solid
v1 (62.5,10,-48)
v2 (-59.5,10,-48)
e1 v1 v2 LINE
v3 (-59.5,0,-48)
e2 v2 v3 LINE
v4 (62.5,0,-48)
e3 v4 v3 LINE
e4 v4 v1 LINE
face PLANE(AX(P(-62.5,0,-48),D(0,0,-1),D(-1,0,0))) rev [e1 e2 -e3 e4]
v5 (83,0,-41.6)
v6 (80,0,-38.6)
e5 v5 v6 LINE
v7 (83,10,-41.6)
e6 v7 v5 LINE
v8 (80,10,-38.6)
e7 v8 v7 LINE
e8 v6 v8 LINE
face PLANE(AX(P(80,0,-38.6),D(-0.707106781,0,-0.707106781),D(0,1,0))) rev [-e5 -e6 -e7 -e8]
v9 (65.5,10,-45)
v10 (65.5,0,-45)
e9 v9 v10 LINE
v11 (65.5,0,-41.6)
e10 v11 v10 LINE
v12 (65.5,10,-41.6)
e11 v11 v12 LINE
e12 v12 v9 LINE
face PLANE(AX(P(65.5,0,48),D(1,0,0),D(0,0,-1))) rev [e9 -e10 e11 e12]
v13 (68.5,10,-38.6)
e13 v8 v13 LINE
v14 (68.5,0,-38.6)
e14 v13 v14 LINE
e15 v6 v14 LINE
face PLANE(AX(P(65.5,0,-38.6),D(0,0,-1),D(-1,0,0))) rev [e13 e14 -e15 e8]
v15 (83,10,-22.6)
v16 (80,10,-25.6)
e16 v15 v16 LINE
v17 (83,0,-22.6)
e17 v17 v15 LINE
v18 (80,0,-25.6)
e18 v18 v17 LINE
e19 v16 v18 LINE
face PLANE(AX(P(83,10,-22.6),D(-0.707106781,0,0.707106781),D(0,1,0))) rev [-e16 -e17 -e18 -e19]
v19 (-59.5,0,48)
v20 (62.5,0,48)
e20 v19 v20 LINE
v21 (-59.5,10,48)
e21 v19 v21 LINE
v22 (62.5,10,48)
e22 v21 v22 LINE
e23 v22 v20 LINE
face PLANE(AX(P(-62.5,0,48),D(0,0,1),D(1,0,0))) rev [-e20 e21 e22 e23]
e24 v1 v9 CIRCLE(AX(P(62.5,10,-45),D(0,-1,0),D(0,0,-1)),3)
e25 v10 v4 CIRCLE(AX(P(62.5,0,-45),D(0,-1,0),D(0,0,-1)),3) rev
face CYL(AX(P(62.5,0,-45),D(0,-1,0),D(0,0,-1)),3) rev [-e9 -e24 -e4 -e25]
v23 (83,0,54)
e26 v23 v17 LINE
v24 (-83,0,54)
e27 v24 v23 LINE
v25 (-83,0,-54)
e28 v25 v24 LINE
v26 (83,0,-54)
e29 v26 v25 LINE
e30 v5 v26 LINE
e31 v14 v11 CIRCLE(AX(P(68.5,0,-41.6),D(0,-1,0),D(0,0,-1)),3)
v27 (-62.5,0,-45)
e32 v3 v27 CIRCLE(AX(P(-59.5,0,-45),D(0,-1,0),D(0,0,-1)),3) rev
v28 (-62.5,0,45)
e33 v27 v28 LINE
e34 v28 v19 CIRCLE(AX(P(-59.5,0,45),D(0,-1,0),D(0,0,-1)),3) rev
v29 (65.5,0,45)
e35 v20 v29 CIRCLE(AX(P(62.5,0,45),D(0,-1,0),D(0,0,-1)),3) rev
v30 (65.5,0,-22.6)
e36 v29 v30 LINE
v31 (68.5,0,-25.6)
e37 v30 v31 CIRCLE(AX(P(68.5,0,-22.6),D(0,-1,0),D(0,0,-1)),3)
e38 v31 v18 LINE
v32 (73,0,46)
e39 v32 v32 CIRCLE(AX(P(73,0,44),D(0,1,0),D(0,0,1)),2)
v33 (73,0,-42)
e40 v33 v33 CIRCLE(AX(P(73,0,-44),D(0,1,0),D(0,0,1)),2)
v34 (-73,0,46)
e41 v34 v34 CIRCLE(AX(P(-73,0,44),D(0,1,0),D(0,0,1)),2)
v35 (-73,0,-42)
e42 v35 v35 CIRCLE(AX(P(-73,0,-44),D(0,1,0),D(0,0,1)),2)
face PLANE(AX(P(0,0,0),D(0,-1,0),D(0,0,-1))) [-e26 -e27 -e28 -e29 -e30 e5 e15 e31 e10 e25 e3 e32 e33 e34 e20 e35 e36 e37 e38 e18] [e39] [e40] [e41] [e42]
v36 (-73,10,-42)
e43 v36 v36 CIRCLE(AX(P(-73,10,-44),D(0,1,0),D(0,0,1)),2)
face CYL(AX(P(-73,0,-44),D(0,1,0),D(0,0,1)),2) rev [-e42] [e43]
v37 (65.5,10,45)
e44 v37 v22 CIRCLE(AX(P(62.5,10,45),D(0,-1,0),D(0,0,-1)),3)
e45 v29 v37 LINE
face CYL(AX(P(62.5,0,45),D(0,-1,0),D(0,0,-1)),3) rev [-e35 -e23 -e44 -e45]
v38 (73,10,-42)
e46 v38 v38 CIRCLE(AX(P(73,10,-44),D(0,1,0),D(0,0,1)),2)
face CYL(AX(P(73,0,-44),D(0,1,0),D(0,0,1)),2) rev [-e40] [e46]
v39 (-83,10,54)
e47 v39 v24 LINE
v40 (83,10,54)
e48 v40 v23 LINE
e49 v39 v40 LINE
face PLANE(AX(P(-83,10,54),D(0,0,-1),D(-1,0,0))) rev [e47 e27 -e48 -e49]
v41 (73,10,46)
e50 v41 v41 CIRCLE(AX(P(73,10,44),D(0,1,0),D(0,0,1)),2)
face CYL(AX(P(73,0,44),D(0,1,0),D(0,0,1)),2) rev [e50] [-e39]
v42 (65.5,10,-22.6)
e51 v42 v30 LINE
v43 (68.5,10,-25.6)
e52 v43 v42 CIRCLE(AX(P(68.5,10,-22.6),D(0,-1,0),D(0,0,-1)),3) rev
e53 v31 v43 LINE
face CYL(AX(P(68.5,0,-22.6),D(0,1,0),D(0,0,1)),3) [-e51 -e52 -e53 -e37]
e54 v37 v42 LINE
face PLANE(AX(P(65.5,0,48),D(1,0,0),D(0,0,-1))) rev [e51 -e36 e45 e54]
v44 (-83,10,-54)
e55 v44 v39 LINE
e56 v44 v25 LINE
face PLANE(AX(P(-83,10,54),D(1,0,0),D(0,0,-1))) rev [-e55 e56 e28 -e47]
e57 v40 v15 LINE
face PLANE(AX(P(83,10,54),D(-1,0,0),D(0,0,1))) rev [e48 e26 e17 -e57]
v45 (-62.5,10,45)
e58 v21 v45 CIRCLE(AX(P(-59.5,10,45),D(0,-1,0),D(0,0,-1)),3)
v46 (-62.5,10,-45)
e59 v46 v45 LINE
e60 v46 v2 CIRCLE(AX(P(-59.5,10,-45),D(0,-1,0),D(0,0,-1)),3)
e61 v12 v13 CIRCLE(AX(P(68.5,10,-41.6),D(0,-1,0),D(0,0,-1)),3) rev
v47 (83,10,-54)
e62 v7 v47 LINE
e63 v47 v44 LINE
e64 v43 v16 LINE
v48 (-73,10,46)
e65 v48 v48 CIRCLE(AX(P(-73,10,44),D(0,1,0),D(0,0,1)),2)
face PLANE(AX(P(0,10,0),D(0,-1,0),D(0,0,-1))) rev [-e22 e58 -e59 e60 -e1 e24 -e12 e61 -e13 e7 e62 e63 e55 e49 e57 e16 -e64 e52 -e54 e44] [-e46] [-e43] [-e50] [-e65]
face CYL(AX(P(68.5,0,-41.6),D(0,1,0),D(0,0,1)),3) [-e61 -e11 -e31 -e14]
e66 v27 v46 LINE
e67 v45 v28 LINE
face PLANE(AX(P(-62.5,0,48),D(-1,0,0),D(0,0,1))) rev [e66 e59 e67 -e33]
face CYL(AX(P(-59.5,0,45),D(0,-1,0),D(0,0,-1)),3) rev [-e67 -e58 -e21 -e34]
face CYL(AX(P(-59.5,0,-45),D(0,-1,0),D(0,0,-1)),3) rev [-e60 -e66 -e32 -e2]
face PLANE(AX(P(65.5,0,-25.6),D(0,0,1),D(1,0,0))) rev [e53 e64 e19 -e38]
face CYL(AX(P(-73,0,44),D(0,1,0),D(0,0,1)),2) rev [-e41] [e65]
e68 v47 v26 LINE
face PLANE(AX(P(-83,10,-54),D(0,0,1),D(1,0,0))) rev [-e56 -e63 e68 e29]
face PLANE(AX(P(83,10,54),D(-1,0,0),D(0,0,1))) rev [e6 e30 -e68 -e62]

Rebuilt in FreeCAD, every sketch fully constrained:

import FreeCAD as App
import Part
import Sketcher

V = App.Vector


def edges_at(feature, points):
    """Names of the edges that pass closest to the given points."""
    edges = feature.Shape.Edges
    near = lambda p: min(range(len(edges)), key=lambda i: edges[i].distToShape(Part.Vertex(*p))[0])
    return sorted({f"Edge{near(p) + 1}" for p in points})

doc = App.newDocument("Part")
body = doc.addObject("PartDesign::Body", "Body")

sketch1 = body.newObject("Sketcher::SketchObject", "Sketch")
sketch1.AttachmentSupport = (doc.getObject("XZ_Plane"), [""])
sketch1.MapMode = "FlatFace"
sketch1.addGeometry(Part.LineSegment(V(-83, -54, 0), V(-83, 54, 0)), False)
sketch1.addGeometry(Part.LineSegment(V(-83, 54, 0), V(83, 54, 0)), False)
sketch1.addGeometry(Part.LineSegment(V(83, 54, 0), V(83, -54, 0)), False)
sketch1.addGeometry(Part.LineSegment(V(83, -54, 0), V(-83, -54, 0)), False)
sketch1.addConstraint(Sketcher.Constraint("Coincident", 0, 2, 1, 1))
sketch1.addConstraint(Sketcher.Constraint("Coincident", 1, 2, 2, 1))
sketch1.addConstraint(Sketcher.Constraint("Coincident", 2, 2, 3, 1))
sketch1.addConstraint(Sketcher.Constraint("Coincident", 3, 2, 0, 1))
sketch1.addConstraint(Sketcher.Constraint("Vertical", 0))
sketch1.addConstraint(Sketcher.Constraint("Horizontal", 1))
sketch1.addConstraint(Sketcher.Constraint("Vertical", 2))
sketch1.addConstraint(Sketcher.Constraint("Horizontal", 3))
sketch1.addConstraint(Sketcher.Constraint("Symmetric", 0, 2, 2, 2, -1, 1))
sketch1.addConstraint(Sketcher.Constraint("DistanceX", 1, 1, 1, 2, 166.0))
sketch1.addConstraint(Sketcher.Constraint("DistanceY", 0, 1, 0, 2, 108.0))
pad1 = body.newObject("PartDesign::Pad", "Pad")
pad1.Profile = sketch1
pad1.Length = 10
pad1.Reversed = True

sketch2 = body.newObject("Sketcher::SketchObject", "Sketch001")
sketch2.AttachmentSupport = (doc.getObject("XZ_Plane"), [""])
sketch2.MapMode = "FlatFace"
sketch2.AttachmentOffset = App.Placement(V(0, 0, -10), App.Rotation())
sketch2.addGeometry(Part.Circle(V(-73, -44, 0), V(0, 0, 1), 2), False)
sketch2.addGeometry(Part.Circle(V(73, -44, 0), V(0, 0, 1), 2), False)
sketch2.addGeometry(Part.Circle(V(-73, 44, 0), V(0, 0, 1), 2), False)
sketch2.addGeometry(Part.Circle(V(73, 44, 0), V(0, 0, 1), 2), False)
sketch2.addConstraint(Sketcher.Constraint("Equal", 0, 1))
sketch2.addConstraint(Sketcher.Constraint("Equal", 1, 2))
sketch2.addConstraint(Sketcher.Constraint("Equal", 2, 3))
sketch2.addConstraint(Sketcher.Constraint("Symmetric", 1, 3, 2, 3, -1, 1))
sketch2.addConstraint(Sketcher.Constraint("Symmetric", 0, 3, 3, 3, -1, 1))
sketch2.addConstraint(Sketcher.Constraint("Symmetric", 0, 3, 1, 3, -2))
sketch2.addConstraint(Sketcher.Constraint("Diameter", 0, 4.0))
sketch2.addConstraint(Sketcher.Constraint("DistanceX", 0, 3, -1, 1, 73.0))
sketch2.addConstraint(Sketcher.Constraint("DistanceY", 0, 3, -1, 1, 44.0))
pocket1 = body.newObject("PartDesign::Pocket", "Pocket")
pocket1.Profile = sketch2
pocket1.Type = "ThroughAll"
pocket1.Reversed = True

sketch3 = body.newObject("Sketcher::SketchObject", "Sketch002")
sketch3.AttachmentSupport = (doc.getObject("XZ_Plane"), [""])
sketch3.MapMode = "FlatFace"
sketch3.AttachmentOffset = App.Placement(V(0, 0, -10), App.Rotation())
sketch3.addGeometry(Part.LineSegment(V(-62.5, -48, 0), V(-62.5, 48, 0)), False)
sketch3.addGeometry(Part.LineSegment(V(-62.5, 48, 0), V(65.5, 48, 0)), False)
sketch3.addGeometry(Part.LineSegment(V(65.5, 48, 0), V(65.5, -48, 0)), False)
sketch3.addGeometry(Part.LineSegment(V(65.5, -48, 0), V(-62.5, -48, 0)), False)
sketch3.addConstraint(Sketcher.Constraint("Coincident", 0, 2, 1, 1))
sketch3.addConstraint(Sketcher.Constraint("Coincident", 1, 2, 2, 1))
sketch3.addConstraint(Sketcher.Constraint("Coincident", 2, 2, 3, 1))
sketch3.addConstraint(Sketcher.Constraint("Coincident", 3, 2, 0, 1))
sketch3.addConstraint(Sketcher.Constraint("Vertical", 0))
sketch3.addConstraint(Sketcher.Constraint("Horizontal", 1))
sketch3.addConstraint(Sketcher.Constraint("Vertical", 2))
sketch3.addConstraint(Sketcher.Constraint("Horizontal", 3))
sketch3.addConstraint(Sketcher.Constraint("DistanceX", 1, 1, 1, 2, 128.0))
sketch3.addConstraint(Sketcher.Constraint("DistanceY", 0, 1, 0, 2, 96.0))
sketch3.addConstraint(Sketcher.Constraint("DistanceY", -1, 1, 0, 2, 48.0))
sketch3.addConstraint(Sketcher.Constraint("DistanceX", 0, 2, -1, 1, 62.5))
pocket2 = body.newObject("PartDesign::Pocket", "Pocket001")
pocket2.Profile = sketch3
pocket2.Type = "ThroughAll"
pocket2.Reversed = True

sketch4 = body.newObject("Sketcher::SketchObject", "Sketch003")
sketch4.AttachmentSupport = (doc.getObject("XZ_Plane"), [""])
sketch4.MapMode = "FlatFace"
sketch4.AttachmentOffset = App.Placement(V(0, 0, -10), App.Rotation())
sketch4.addGeometry(Part.LineSegment(V(65.5, -38.6, 0), V(65.5, -25.6, 0)), False)
sketch4.addGeometry(Part.LineSegment(V(65.5, -25.6, 0), V(83, -25.6, 0)), False)
sketch4.addGeometry(Part.LineSegment(V(83, -25.6, 0), V(83, -38.6, 0)), False)
sketch4.addGeometry(Part.LineSegment(V(83, -38.6, 0), V(65.5, -38.6, 0)), False)
sketch4.addConstraint(Sketcher.Constraint("Coincident", 0, 2, 1, 1))
sketch4.addConstraint(Sketcher.Constraint("Coincident", 1, 2, 2, 1))
sketch4.addConstraint(Sketcher.Constraint("Coincident", 2, 2, 3, 1))
sketch4.addConstraint(Sketcher.Constraint("Coincident", 3, 2, 0, 1))
sketch4.addConstraint(Sketcher.Constraint("Vertical", 0))
sketch4.addConstraint(Sketcher.Constraint("Horizontal", 1))
sketch4.addConstraint(Sketcher.Constraint("Vertical", 2))
sketch4.addConstraint(Sketcher.Constraint("Horizontal", 3))
sketch4.addConstraint(Sketcher.Constraint("DistanceY", 0, 1, 0, 2, 13.0))
sketch4.addConstraint(Sketcher.Constraint("DistanceX", 1, 1, 1, 2, 17.5))
sketch4.addConstraint(Sketcher.Constraint("DistanceX", -1, 1, 1, 2, 83.0))
sketch4.addConstraint(Sketcher.Constraint("DistanceY", 0, 2, -1, 1, 25.6))
pocket3 = body.newObject("PartDesign::Pocket", "Pocket002")
pocket3.Profile = sketch4
pocket3.Type = "ThroughAll"
pocket3.Reversed = True
doc.recompute()

fillet = body.newObject("PartDesign::Fillet", "Fillet")
fillet.Base = (pocket3, edges_at(pocket3, [
    (65.5, 5, -48),
    (65.5, 5, 48),
    (-62.5, 5, 48),
    (-62.5, 5, -48),
]))
fillet.Radius = 3
doc.recompute()

chamfer = body.newObject("PartDesign::Chamfer", "Chamfer")
chamfer.Base = (fillet, edges_at(fillet, [(83, 5, -38.6), (83, 5, -25.6)]))
chamfer.Size = 3
doc.recompute()

fillet2 = body.newObject("PartDesign::Fillet", "Fillet001")
fillet2.Base = (chamfer, edges_at(chamfer, [(65.5, 5, -25.6), (65.5, 5, -38.6)]))
fillet2.Radius = 3

doc.recompute()
